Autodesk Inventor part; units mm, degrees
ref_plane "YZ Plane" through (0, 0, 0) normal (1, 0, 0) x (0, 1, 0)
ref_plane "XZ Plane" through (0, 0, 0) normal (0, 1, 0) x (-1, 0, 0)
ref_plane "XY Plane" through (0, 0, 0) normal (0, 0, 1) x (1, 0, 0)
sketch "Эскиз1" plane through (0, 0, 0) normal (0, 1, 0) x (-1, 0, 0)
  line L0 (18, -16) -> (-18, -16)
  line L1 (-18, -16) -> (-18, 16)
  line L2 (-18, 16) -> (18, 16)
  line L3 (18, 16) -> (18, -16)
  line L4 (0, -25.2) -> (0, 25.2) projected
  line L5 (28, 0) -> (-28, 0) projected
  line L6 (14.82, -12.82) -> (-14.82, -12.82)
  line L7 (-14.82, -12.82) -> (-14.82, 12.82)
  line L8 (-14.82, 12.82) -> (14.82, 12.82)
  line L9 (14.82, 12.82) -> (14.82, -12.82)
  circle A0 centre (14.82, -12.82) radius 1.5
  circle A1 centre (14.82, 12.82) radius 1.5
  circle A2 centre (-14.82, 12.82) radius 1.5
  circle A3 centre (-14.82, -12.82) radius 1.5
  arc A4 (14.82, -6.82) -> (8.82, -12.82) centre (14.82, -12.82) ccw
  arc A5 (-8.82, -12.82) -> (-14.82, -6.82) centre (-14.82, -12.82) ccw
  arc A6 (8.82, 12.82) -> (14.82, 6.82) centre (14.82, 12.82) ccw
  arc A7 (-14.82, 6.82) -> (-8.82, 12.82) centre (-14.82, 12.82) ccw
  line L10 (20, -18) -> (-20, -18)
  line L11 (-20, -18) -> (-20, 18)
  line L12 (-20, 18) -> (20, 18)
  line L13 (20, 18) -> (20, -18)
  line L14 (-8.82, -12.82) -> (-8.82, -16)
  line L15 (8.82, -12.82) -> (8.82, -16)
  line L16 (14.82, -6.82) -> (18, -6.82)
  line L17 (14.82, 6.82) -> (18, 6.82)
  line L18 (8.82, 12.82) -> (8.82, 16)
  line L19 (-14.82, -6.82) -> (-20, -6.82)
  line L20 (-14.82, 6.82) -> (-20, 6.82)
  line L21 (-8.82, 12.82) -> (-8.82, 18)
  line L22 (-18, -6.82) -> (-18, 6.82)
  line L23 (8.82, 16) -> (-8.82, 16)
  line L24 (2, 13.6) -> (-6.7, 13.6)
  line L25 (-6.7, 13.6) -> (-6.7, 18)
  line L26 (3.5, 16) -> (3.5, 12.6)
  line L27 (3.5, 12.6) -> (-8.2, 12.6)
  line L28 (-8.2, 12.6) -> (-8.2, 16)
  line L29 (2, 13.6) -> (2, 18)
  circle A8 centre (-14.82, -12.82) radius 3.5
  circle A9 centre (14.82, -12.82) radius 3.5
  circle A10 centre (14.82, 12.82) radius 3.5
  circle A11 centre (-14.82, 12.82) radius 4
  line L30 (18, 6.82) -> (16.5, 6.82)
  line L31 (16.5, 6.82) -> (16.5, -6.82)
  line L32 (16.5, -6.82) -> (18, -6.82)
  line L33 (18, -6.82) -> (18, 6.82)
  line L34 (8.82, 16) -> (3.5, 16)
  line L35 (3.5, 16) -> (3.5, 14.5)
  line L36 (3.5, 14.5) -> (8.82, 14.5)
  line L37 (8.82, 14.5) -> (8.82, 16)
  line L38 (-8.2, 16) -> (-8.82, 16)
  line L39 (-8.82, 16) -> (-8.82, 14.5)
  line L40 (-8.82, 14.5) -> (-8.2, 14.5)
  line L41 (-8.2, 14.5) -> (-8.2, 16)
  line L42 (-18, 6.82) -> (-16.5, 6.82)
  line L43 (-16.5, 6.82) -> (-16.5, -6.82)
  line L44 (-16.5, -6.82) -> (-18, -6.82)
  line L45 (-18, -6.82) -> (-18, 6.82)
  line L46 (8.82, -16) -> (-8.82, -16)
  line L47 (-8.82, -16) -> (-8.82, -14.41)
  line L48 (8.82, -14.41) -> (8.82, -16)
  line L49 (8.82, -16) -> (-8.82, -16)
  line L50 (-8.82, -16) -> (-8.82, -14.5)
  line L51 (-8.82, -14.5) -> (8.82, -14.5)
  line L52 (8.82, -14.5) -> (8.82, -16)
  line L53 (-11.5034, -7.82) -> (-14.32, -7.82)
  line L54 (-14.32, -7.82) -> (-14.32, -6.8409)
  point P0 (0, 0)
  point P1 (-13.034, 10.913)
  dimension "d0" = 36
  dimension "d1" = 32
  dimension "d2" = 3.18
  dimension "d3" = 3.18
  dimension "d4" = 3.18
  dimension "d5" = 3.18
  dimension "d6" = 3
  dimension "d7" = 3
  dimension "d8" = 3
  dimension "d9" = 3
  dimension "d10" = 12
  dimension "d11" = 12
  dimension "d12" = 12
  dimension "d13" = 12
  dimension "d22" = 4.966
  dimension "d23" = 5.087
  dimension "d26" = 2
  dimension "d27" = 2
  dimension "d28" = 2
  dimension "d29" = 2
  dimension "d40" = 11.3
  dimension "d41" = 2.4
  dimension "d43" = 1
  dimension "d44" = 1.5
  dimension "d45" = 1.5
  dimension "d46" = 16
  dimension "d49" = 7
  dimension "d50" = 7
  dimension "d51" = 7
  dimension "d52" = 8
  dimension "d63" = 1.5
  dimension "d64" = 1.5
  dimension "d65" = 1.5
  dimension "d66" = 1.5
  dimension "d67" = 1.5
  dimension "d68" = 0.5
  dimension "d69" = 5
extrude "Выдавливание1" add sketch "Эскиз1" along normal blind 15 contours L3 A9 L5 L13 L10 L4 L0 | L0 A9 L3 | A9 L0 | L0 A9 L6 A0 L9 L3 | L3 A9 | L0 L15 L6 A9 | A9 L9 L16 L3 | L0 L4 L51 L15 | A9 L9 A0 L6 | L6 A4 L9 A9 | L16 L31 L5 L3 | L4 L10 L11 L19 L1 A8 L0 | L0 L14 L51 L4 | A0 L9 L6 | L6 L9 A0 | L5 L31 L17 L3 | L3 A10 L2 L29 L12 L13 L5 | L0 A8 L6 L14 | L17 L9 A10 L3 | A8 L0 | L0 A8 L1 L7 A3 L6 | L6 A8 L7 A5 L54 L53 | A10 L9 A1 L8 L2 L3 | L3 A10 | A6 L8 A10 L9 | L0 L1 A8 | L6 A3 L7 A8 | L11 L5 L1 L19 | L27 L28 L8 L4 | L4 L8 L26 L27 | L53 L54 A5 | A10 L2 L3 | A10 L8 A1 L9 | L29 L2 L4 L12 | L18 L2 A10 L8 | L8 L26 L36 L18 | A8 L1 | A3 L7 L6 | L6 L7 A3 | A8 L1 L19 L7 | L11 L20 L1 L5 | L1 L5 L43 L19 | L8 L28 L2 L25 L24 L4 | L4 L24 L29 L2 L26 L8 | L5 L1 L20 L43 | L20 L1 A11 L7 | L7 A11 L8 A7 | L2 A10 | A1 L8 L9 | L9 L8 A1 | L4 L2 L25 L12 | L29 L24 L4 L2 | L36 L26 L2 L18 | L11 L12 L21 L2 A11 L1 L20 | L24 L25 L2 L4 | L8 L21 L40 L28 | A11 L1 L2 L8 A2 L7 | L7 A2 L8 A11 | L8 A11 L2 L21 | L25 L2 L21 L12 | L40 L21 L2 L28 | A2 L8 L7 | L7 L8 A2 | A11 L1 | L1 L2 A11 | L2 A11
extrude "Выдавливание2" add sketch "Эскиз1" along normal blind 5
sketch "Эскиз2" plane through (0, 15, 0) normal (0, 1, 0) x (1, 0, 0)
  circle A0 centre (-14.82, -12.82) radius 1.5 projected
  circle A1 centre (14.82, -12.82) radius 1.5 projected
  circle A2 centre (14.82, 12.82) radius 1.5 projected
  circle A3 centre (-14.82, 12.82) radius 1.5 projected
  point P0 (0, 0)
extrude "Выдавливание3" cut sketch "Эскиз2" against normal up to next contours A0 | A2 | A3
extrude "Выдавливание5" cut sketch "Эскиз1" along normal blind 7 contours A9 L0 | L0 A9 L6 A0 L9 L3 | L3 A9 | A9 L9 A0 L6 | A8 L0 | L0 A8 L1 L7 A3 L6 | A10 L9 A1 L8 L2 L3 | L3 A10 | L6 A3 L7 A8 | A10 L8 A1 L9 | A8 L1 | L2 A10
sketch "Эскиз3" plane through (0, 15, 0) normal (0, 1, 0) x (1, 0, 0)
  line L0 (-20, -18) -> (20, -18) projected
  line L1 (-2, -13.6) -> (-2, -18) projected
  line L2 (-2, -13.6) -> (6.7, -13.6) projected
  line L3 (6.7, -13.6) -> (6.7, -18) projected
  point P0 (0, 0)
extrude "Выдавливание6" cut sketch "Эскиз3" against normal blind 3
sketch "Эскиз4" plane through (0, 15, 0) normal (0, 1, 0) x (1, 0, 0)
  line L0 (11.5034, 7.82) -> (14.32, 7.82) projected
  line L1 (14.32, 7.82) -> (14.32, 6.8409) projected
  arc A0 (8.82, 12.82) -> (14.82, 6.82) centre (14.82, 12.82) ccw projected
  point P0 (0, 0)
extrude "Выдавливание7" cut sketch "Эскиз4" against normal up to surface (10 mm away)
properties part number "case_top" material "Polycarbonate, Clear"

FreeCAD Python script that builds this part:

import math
import FreeCAD as App
import Part
import Sketcher
Q = App.Units.Quantity

doc = App.newDocument("Part")
params = doc.addObject("Spreadsheet::Sheet", "Params")
for row, (alias, value) in enumerate([
    ("sketch1_radius", "6 mm"),
    ("sketch1_height", "36 mm"),
    ("sketch1_width", "40 mm"),
    ("sketch1_width2", "11.7 mm"),
    ("sketch1_width3", "1.68 mm"),
    ("pad1_length", "15 mm"),
    ("sketch2_height", "36 mm"),
    ("sketch2_width", "40 mm"),
    ("pad2_length", "5 mm"),
    ("sketch3_diameter", "3 mm"),
    ("pocket1_length", "15 mm"),
    ("sketch4_diameter", "7 mm"),
    ("sketch4_diameter2", "3 mm"),
    ("pocket2_length", "7 mm"),
    ("sketch5_width", "8.7 mm"),
    ("sketch5_height", "4.4 mm"),
    ("pocket3_length", "3 mm"),
    ("sketch6_radius", "6 mm"),
    ("sketch6_width", "0.5 mm"),
    ("pocket4_length", "10 mm"),
], start=1):
    params.set(f"A{row}", alias)
    params.set(f"B{row}", "=" + value)
    params.setAlias(f"B{row}", alias)

body = doc.addObject("PartDesign::Body", "Body")

# Sketch on XZ plane
sketch1 = doc.addObject("Sketcher::SketchObject", "Sketch")
body.addObject(sketch1)
sketch1.AttachmentSupport = (doc.XZ_Plane, [""])
sketch1.MapMode = "FlatFace"
sketch1.addGeometry(Part.LineSegment(App.Vector(-20, -18, 0), App.Vector(-20, 18, 0)), False)
sketch1.addGeometry(Part.LineSegment(App.Vector(-20, 18, 0), App.Vector(20, 18, 0)), False)
sketch1.addGeometry(Part.LineSegment(App.Vector(20, 18, 0), App.Vector(20, -18, 0)), False)
sketch1.addGeometry(Part.LineSegment(App.Vector(20, -18, 0), App.Vector(-20, -18, 0)), False)
sketch1.addGeometry(Part.LineSegment(App.Vector(-16.5, -6.82, 0), App.Vector(-14.82, -6.82, 0)), False)
sketch1.addGeometry(Part.ArcOfCircle(Part.Circle(App.Vector(-14.82, -12.82, 0), App.Vector(0, 0, 1), 6), math.radians(0), math.radians(90)), False)
sketch1.addGeometry(Part.LineSegment(App.Vector(-8.82, -12.82, 0), App.Vector(-8.82, -14.5, 0)), False)
sketch1.addGeometry(Part.LineSegment(App.Vector(-8.82, -14.5, 0), App.Vector(8.82, -14.5, 0)), False)
sketch1.addGeometry(Part.LineSegment(App.Vector(8.82, -14.5, 0), App.Vector(8.82, -12.82, 0)), False)
sketch1.addGeometry(Part.ArcOfCircle(Part.Circle(App.Vector(14.82, -12.82, 0), App.Vector(0, 0, 1), 6), math.radians(90), math.radians(180)), False)
sketch1.addGeometry(Part.LineSegment(App.Vector(14.82, -6.82, 0), App.Vector(16.5, -6.82, 0)), False)
sketch1.addGeometry(Part.LineSegment(App.Vector(16.5, -6.82, 0), App.Vector(16.5, 6.82, 0)), False)
sketch1.addGeometry(Part.LineSegment(App.Vector(16.5, 6.82, 0), App.Vector(14.82, 6.82, 0)), False)
sketch1.addGeometry(Part.ArcOfCircle(Part.Circle(App.Vector(14.82, 12.82, 0), App.Vector(0, 0, 1), 6), math.radians(180), math.radians(270)), False)
sketch1.addGeometry(Part.LineSegment(App.Vector(8.82, 12.82, 0), App.Vector(8.2, 12.82, 0)), False)
sketch1.addGeometry(Part.LineSegment(App.Vector(8.2, 12.82, 0), App.Vector(8.2, 12.6, 0)), False)
sketch1.addGeometry(Part.LineSegment(App.Vector(8.2, 12.6, 0), App.Vector(-3.5, 12.6, 0)), False)
sketch1.addGeometry(Part.LineSegment(App.Vector(-3.5, 12.6, 0), App.Vector(-3.5, 12.82, 0)), False)
sketch1.addGeometry(Part.LineSegment(App.Vector(-3.5, 12.82, 0), App.Vector(-8.82, 12.82, 0)), False)
sketch1.addGeometry(Part.ArcOfCircle(Part.Circle(App.Vector(-14.82, 12.82, 0), App.Vector(0, 0, 1), 6), math.radians(-90), math.radians(0)), False)
sketch1.addGeometry(Part.LineSegment(App.Vector(-14.82, 6.82, 0), App.Vector(-16.5, 6.82, 0)), False)
sketch1.addGeometry(Part.LineSegment(App.Vector(-16.5, 6.82, 0), App.Vector(-16.5, -6.82, 0)), False)
sketch1.addConstraint(Sketcher.Constraint("Coincident", 0, 2, 1, 1))
sketch1.addConstraint(Sketcher.Constraint("Coincident", 1, 2, 2, 1))
sketch1.addConstraint(Sketcher.Constraint("Coincident", 2, 2, 3, 1))
sketch1.addConstraint(Sketcher.Constraint("Coincident", 3, 2, 0, 1))
sketch1.addConstraint(Sketcher.Constraint("Tangent", 4, 2, 5, 2))
sketch1.addConstraint(Sketcher.Constraint("Tangent", 5, 1, 6, 1))
sketch1.addConstraint(Sketcher.Constraint("Coincident", 6, 2, 7, 1))
sketch1.addConstraint(Sketcher.Constraint("Coincident", 7, 2, 8, 1))
sketch1.addConstraint(Sketcher.Constraint("Tangent", 8, 2, 9, 2))
sketch1.addConstraint(Sketcher.Constraint("Tangent", 9, 1, 10, 1))
sketch1.addConstraint(Sketcher.Constraint("Coincident", 10, 2, 11, 1))
sketch1.addConstraint(Sketcher.Constraint("Coincident", 11, 2, 12, 1))
sketch1.addConstraint(Sketcher.Constraint("Tangent", 12, 2, 13, 2))
sketch1.addConstraint(Sketcher.Constraint("Coincident", 13, 1, 14, 1))
sketch1.addConstraint(Sketcher.Constraint("Coincident", 14, 2, 15, 1))
sketch1.addConstraint(Sketcher.Constraint("Coincident", 15, 2, 16, 1))
sketch1.addConstraint(Sketcher.Constraint("Coincident", 16, 2, 17, 1))
sketch1.addConstraint(Sketcher.Constraint("Coincident", 17, 2, 18, 1))
sketch1.addConstraint(Sketcher.Constraint("Coincident", 18, 2, 19, 2))
sketch1.addConstraint(Sketcher.Constraint("Tangent", 19, 1, 20, 1))
sketch1.addConstraint(Sketcher.Constraint("Coincident", 20, 2, 21, 1))
sketch1.addConstraint(Sketcher.Constraint("Coincident", 21, 2, 4, 1))
sketch1.addConstraint(Sketcher.Constraint("Vertical", 0))
sketch1.addConstraint(Sketcher.Constraint("Horizontal", 1))
sketch1.addConstraint(Sketcher.Constraint("Vertical", 2))
sketch1.addConstraint(Sketcher.Constraint("Horizontal", 3))
sketch1.addConstraint(Sketcher.Constraint("Horizontal", 4))
sketch1.addConstraint(Sketcher.Constraint("Vertical", 6))
sketch1.addConstraint(Sketcher.Constraint("Horizontal", 7))
sketch1.addConstraint(Sketcher.Constraint("Vertical", 8))
sketch1.addConstraint(Sketcher.Constraint("Horizontal", 10))
sketch1.addConstraint(Sketcher.Constraint("Vertical", 11))
sketch1.addConstraint(Sketcher.Constraint("Horizontal", 12))
sketch1.addConstraint(Sketcher.Constraint("Horizontal", 14))
sketch1.addConstraint(Sketcher.Constraint("Vertical", 15))
sketch1.addConstraint(Sketcher.Constraint("Horizontal", 16))
sketch1.addConstraint(Sketcher.Constraint("Vertical", 17))
sketch1.addConstraint(Sketcher.Constraint("Horizontal", 18))
sketch1.addConstraint(Sketcher.Constraint("Horizontal", 20))
sketch1.addConstraint(Sketcher.Constraint("Vertical", 21))
sketch1.addConstraint(Sketcher.Constraint("Equal", 5, 9))
sketch1.addConstraint(Sketcher.Constraint("Equal", 9, 13))
sketch1.addConstraint(Sketcher.Constraint("Equal", 13, 19))
sketch1.addConstraint(Sketcher.Constraint("Symmetric", 5, 3, 13, 3, -1, 1))
sketch1.addConstraint(Sketcher.Constraint("Symmetric", 9, 3, 19, 3, -1, 1))
sketch1.addConstraint(Sketcher.Constraint("Symmetric", 0, 2, 2, 2, -1, 1))
sketch1.addConstraint(Sketcher.Constraint("Symmetric", 5, 3, 9, 3, -2))
sketch1.addConstraint(Sketcher.Constraint("Horizontal", 19, 3, 13, 1))
sketch1.addConstraint(Sketcher.Constraint("Horizontal", 14, 2, 17, 2))
sketch1.addConstraint(Sketcher.Constraint("Equal", 4, 10))
sketch1.addConstraint(Sketcher.Constraint("Equal", 20, 6))
sketch1.addConstraint(Sketcher.Constraint("Radius", 5, Q("6 mm")))
sketch1.addConstraint(Sketcher.Constraint("DistanceY", 0, 1, 0, 2, Q("36 mm")))
sketch1.addConstraint(Sketcher.Constraint("DistanceX", 1, 1, 1, 2, Q("40 mm")))
sketch1.addConstraint(Sketcher.Constraint("DistanceX", 16, 2, 16, 1, Q("11.7 mm")))
sketch1.addConstraint(Sketcher.Constraint("DistanceX", 4, 1, 4, 2, Q("1.68 mm")))
sketch1.addConstraint(Sketcher.Constraint("DistanceX", 7, 1, 7, 2, Q("17.64 mm")))
sketch1.addConstraint(Sketcher.Constraint("DistanceX", 14, 2, 14, 1, Q("0.62 mm")))
sketch1.addConstraint(Sketcher.Constraint("DistanceY", 11, 1, 11, 2, Q("13.64 mm")))
sketch1.addConstraint(Sketcher.Constraint("DistanceY", 15, 2, 15, 1, Q("0.22 mm")))
sketch1.setExpression("Constraints[51]", "Params.sketch1_radius")
sketch1.setExpression("Constraints[52]", "Params.sketch1_height")
sketch1.setExpression("Constraints[53]", "Params.sketch1_width")
sketch1.setExpression("Constraints[54]", "Params.sketch1_width2")
sketch1.setExpression("Constraints[55]", "Params.sketch1_width3")
pad1 = doc.addObject("PartDesign::Pad", "Pad")
body.addObject(pad1)
pad1.Profile = sketch1
pad1.setExpression("Length", "Params.pad1_length")
pad1.Reversed = True

# Sketch on XZ plane
sketch2 = doc.addObject("Sketcher::SketchObject", "Sketch001")
body.addObject(sketch2)
sketch2.AttachmentSupport = (doc.XZ_Plane, [""])
sketch2.MapMode = "FlatFace"
sketch2.addGeometry(Part.LineSegment(App.Vector(-20, -18, 0), App.Vector(-20, 18, 0)), False)
sketch2.addGeometry(Part.LineSegment(App.Vector(-20, 18, 0), App.Vector(20, 18, 0)), False)
sketch2.addGeometry(Part.LineSegment(App.Vector(20, 18, 0), App.Vector(20, -18, 0)), False)
sketch2.addGeometry(Part.LineSegment(App.Vector(20, -18, 0), App.Vector(-20, -18, 0)), False)
sketch2.addConstraint(Sketcher.Constraint("Coincident", 0, 2, 1, 1))
sketch2.addConstraint(Sketcher.Constraint("Coincident", 1, 2, 2, 1))
sketch2.addConstraint(Sketcher.Constraint("Coincident", 2, 2, 3, 1))
sketch2.addConstraint(Sketcher.Constraint("Coincident", 3, 2, 0, 1))
sketch2.addConstraint(Sketcher.Constraint("Vertical", 0))
sketch2.addConstraint(Sketcher.Constraint("Horizontal", 1))
sketch2.addConstraint(Sketcher.Constraint("Vertical", 2))
sketch2.addConstraint(Sketcher.Constraint("Horizontal", 3))
sketch2.addConstraint(Sketcher.Constraint("Symmetric", 0, 2, 2, 2, -1, 1))
sketch2.addConstraint(Sketcher.Constraint("DistanceY", 0, 1, 0, 2, Q("36 mm")))
sketch2.addConstraint(Sketcher.Constraint("DistanceX", 1, 1, 1, 2, Q("40 mm")))
sketch2.setExpression("Constraints[9]", "Params.sketch2_height")
sketch2.setExpression("Constraints[10]", "Params.sketch2_width")
pad2 = doc.addObject("PartDesign::Pad", "Pad001")
body.addObject(pad2)
pad2.Profile = sketch2
pad2.setExpression("Length", "Params.pad2_length")
pad2.Reversed = True

# Sketch on XZ plane
sketch3 = doc.addObject("Sketcher::SketchObject", "Sketch002")
body.addObject(sketch3)
sketch3.AttachmentSupport = (doc.XZ_Plane, [""])
sketch3.MapMode = "FlatFace"
sketch3.AttachmentOffset = App.Placement(App.Vector(0, 0, -15), App.Rotation())
sketch3.addGeometry(Part.Circle(App.Vector(-14.82, 12.82, 0), App.Vector(0, 0, 1), 1.5), False)
sketch3.addGeometry(Part.Circle(App.Vector(14.82, -12.82, 0), App.Vector(0, 0, 1), 1.5), False)
sketch3.addGeometry(Part.Circle(App.Vector(-14.82, -12.82, 0), App.Vector(0, 0, 1), 1.5), False)
sketch3.addConstraint(Sketcher.Constraint("Equal", 0, 1))
sketch3.addConstraint(Sketcher.Constraint("Equal", 1, 2))
sketch3.addConstraint(Sketcher.Constraint("Symmetric", 0, 3, 1, 3, -1, 1))
sketch3.addConstraint(Sketcher.Constraint("Symmetric", 1, 3, 2, 3, -2))
sketch3.addConstraint(Sketcher.Constraint("Diameter", 0, Q("3 mm")))
sketch3.addConstraint(Sketcher.Constraint("DistanceX", 0, 3, -1, 1, Q("14.82 mm")))
sketch3.addConstraint(Sketcher.Constraint("DistanceY", -1, 1, 0, 3, Q("12.82 mm")))
sketch3.setExpression("Constraints[4]", "Params.sketch3_diameter")
pocket1 = doc.addObject("PartDesign::Pocket", "Pocket")
body.addObject(pocket1)
pocket1.Profile = sketch3
pocket1.setExpression("Length", "Params.pocket1_length")
pocket1.Reversed = True

# Sketch on XZ plane
sketch4 = doc.addObject("Sketcher::SketchObject", "Sketch003")
body.addObject(sketch4)
sketch4.AttachmentSupport = (doc.XZ_Plane, [""])
sketch4.MapMode = "FlatFace"
sketch4.addGeometry(Part.Circle(App.Vector(-14.82, -12.82, 0), App.Vector(0, 0, 1), 3.5), False)
sketch4.addGeometry(Part.Circle(App.Vector(-14.82, -12.82, 0), App.Vector(0, 0, 1), 1.5), False)
sketch4.addGeometry(Part.Circle(App.Vector(14.82, -12.82, 0), App.Vector(0, 0, 1), 3.5), False)
sketch4.addGeometry(Part.Circle(App.Vector(14.82, -12.82, 0), App.Vector(0, 0, 1), 1.5), False)
sketch4.addGeometry(Part.Circle(App.Vector(-14.82, 12.82, 0), App.Vector(0, 0, 1), 3.5), False)
sketch4.addGeometry(Part.Circle(App.Vector(-14.82, 12.82, 0), App.Vector(0, 0, 1), 1.5), False)
sketch4.addConstraint(Sketcher.Constraint("Coincident", 1, 3, 0, 3))
sketch4.addConstraint(Sketcher.Constraint("Coincident", 3, 3, 2, 3))
sketch4.addConstraint(Sketcher.Constraint("Coincident", 5, 3, 4, 3))
sketch4.addConstraint(Sketcher.Constraint("Equal", 0, 2))
sketch4.addConstraint(Sketcher.Constraint("Equal", 1, 3))
sketch4.addConstraint(Sketcher.Constraint("Equal", 2, 4))
sketch4.addConstraint(Sketcher.Constraint("Equal", 3, 5))
sketch4.addConstraint(Sketcher.Constraint("Symmetric", 2, 3, 4, 3, -1, 1))
sketch4.addConstraint(Sketcher.Constraint("Symmetric", 0, 3, 2, 3, -2))
sketch4.addConstraint(Sketcher.Constraint("Diameter", 0, Q("7 mm")))
sketch4.addConstraint(Sketcher.Constraint("Diameter", 1, Q("3 mm")))
sketch4.addConstraint(Sketcher.Constraint("DistanceX", 0, 3, -1, 1, Q("14.82 mm")))
sketch4.addConstraint(Sketcher.Constraint("DistanceY", 0, 3, -1, 1, Q("12.82 mm")))
sketch4.setExpression("Constraints[9]", "Params.sketch4_diameter")
sketch4.setExpression("Constraints[10]", "Params.sketch4_diameter2")
pocket2 = doc.addObject("PartDesign::Pocket", "Pocket001")
body.addObject(pocket2)
pocket2.Profile = sketch4
pocket2.setExpression("Length", "Params.pocket2_length")

# Sketch on XZ plane
sketch5 = doc.addObject("Sketcher::SketchObject", "Sketch004")
body.addObject(sketch5)
sketch5.AttachmentSupport = (doc.XZ_Plane, [""])
sketch5.MapMode = "FlatFace"
sketch5.AttachmentOffset = App.Placement(App.Vector(0, 0, -15), App.Rotation())
sketch5.addGeometry(Part.LineSegment(App.Vector(-2, 13.6, 0), App.Vector(-2, 18, 0)), False)
sketch5.addGeometry(Part.LineSegment(App.Vector(-2, 18, 0), App.Vector(6.7, 18, 0)), False)
sketch5.addGeometry(Part.LineSegment(App.Vector(6.7, 18, 0), App.Vector(6.7, 13.6, 0)), False)
sketch5.addGeometry(Part.LineSegment(App.Vector(6.7, 13.6, 0), App.Vector(-2, 13.6, 0)), False)
sketch5.addConstraint(Sketcher.Constraint("Coincident", 0, 2, 1, 1))
sketch5.addConstraint(Sketcher.Constraint("Coincident", 1, 2, 2, 1))
sketch5.addConstraint(Sketcher.Constraint("Coincident", 2, 2, 3, 1))
sketch5.addConstraint(Sketcher.Constraint("Coincident", 3, 2, 0, 1))
sketch5.addConstraint(Sketcher.Constraint("Vertical", 0))
sketch5.addConstraint(Sketcher.Constraint("Horizontal", 1))
sketch5.addConstraint(Sketcher.Constraint("Vertical", 2))
sketch5.addConstraint(Sketcher.Constraint("Horizontal", 3))
sketch5.addConstraint(Sketcher.Constraint("DistanceX", 1, 1, 1, 2, Q("8.7 mm")))
sketch5.addConstraint(Sketcher.Constraint("DistanceY", 0, 1, 0, 2, Q("4.4 mm")))
sketch5.addConstraint(Sketcher.Constraint("DistanceX", 0, 2, -1, 1, Q("2 mm")))
sketch5.addConstraint(Sketcher.Constraint("DistanceY", -1, 1, 0, 2, Q("18 mm")))
sketch5.setExpression("Constraints[8]", "Params.sketch5_width")
sketch5.setExpression("Constraints[9]", "Params.sketch5_height")
pocket3 = doc.addObject("PartDesign::Pocket", "Pocket002")
body.addObject(pocket3)
pocket3.Profile = sketch5
pocket3.setExpression("Length", "Params.pocket3_length")
pocket3.Reversed = True

# Sketch on XZ plane
sketch6 = doc.addObject("Sketcher::SketchObject", "Sketch005")
body.addObject(sketch6)
sketch6.AttachmentSupport = (doc.XZ_Plane, [""])
sketch6.MapMode = "FlatFace"
sketch6.AttachmentOffset = App.Placement(App.Vector(0, 0, -15), App.Rotation())
sketch6.addGeometry(Part.LineSegment(App.Vector(14.32, -7.82, 0), App.Vector(11.5034, -7.82, 0)), False)
sketch6.addGeometry(Part.ArcOfCircle(Part.Circle(App.Vector(14.82, -12.82, 0), App.Vector(0, 0, 1), 6), math.radians(94.780216), math.radians(123.557112)), False)
sketch6.addGeometry(Part.LineSegment(App.Vector(14.32, -6.8409, 0), App.Vector(14.32, -7.82, 0)), False)
sketch6.addConstraint(Sketcher.Constraint("Coincident", 0, 2, 1, 2))
sketch6.addConstraint(Sketcher.Constraint("Coincident", 1, 1, 2, 1))
sketch6.addConstraint(Sketcher.Constraint("Coincident", 2, 2, 0, 1))
sketch6.addConstraint(Sketcher.Constraint("Horizontal", 0))
sketch6.addConstraint(Sketcher.Constraint("Vertical", 2))
sketch6.addConstraint(Sketcher.Constraint("Radius", 1, Q("6 mm")))
sketch6.addConstraint(Sketcher.Constraint("DistanceY", 1, 3, 0, 2, Q("5 mm")))
sketch6.addConstraint(Sketcher.Constraint("DistanceX", 1, 1, 1, 3, Q("0.5 mm")))
sketch6.addConstraint(Sketcher.Constraint("DistanceX", -1, 1, 1, 3, Q("14.82 mm")))
sketch6.addConstraint(Sketcher.Constraint("DistanceY", 1, 3, -1, 1, Q("12.82 mm")))
sketch6.setExpression("Constraints[5]", "Params.sketch6_radius")
sketch6.setExpression("Constraints[7]", "Params.sketch6_width")
pocket4 = doc.addObject("PartDesign::Pocket", "Pocket003")
body.addObject(pocket4)
pocket4.Profile = sketch6
pocket4.setExpression("Length", "Params.pocket4_length")
pocket4.Reversed = True

doc.recompute()
